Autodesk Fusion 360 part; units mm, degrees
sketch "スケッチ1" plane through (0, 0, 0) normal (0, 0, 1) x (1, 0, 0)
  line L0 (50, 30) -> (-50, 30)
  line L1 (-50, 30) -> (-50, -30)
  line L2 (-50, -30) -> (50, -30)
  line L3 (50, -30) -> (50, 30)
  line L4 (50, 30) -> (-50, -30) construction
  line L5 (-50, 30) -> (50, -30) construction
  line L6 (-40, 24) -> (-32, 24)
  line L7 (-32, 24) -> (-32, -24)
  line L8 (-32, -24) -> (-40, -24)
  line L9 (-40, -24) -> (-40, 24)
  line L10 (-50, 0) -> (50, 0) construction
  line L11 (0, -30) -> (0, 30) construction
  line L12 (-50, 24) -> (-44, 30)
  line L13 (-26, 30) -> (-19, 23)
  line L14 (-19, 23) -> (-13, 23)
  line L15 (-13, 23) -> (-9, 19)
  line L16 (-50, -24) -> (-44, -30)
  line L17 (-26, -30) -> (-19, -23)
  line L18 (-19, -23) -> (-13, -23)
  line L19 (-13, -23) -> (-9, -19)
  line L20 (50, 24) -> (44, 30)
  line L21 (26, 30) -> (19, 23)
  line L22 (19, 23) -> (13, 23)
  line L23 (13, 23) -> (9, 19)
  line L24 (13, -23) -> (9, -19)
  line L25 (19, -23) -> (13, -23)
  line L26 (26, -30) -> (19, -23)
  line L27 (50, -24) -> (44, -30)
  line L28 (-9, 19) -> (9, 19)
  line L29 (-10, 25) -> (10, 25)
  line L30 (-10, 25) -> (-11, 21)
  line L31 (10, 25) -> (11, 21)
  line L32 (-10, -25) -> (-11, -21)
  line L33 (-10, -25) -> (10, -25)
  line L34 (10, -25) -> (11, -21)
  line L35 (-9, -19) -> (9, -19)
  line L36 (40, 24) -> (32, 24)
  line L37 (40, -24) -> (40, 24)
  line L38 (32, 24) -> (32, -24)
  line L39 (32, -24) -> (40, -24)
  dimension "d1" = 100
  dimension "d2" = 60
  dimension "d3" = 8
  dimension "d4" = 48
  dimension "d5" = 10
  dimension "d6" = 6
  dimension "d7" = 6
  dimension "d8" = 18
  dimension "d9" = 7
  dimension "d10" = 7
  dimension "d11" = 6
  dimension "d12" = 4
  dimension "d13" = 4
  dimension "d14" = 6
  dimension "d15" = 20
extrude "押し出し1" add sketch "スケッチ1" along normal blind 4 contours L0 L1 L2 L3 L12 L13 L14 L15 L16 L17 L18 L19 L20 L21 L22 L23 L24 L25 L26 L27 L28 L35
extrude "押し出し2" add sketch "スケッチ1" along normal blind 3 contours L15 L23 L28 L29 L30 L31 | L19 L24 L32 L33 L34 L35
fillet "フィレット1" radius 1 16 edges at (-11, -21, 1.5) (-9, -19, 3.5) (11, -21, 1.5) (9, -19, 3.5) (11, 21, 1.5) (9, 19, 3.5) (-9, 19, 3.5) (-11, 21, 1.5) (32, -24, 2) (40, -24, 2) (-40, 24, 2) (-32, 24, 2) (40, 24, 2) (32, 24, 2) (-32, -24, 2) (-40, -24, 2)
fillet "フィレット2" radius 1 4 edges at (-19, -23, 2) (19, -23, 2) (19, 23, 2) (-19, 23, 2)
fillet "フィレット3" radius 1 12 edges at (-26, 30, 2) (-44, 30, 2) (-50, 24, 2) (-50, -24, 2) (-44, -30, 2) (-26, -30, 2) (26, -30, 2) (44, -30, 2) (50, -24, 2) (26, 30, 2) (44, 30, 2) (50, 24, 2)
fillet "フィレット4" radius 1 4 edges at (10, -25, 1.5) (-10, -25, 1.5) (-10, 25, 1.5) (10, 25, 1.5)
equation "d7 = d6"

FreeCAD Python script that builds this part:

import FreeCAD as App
import Part
import Sketcher
Q = App.Units.Quantity


def edges_at(feature, points):
    """Names of the edges that pass closest to the given points."""
    edges = feature.Shape.Edges
    near = lambda p: min(range(len(edges)), key=lambda i: edges[i].distToShape(Part.Vertex(*p))[0])
    return sorted({f"Edge{near(p) + 1}" for p in points})


def add_polygon(sketch, points):
    """Adds a closed chain of lines whose ends are joined by coincident constraints."""
    first, n = sketch.GeometryCount, len(points)
    for a, b in zip(points, points[1:] + points[:1]):
        sketch.addGeometry(Part.LineSegment(App.Vector(*a, 0), App.Vector(*b, 0)), False)
    for i in range(n):
        sketch.addConstraint(Sketcher.Constraint("Coincident", first + i, 2, first + (i + 1) % n, 1))

doc = App.newDocument("Part")
body = doc.addObject("PartDesign::Body", "Body")

# Sketch on XY plane
sketch1 = doc.addObject("Sketcher::SketchObject", "Sketch")
body.addObject(sketch1)
sketch1.AttachmentSupport = (doc.XY_Plane, [""])
sketch1.MapMode = "FlatFace"
add_polygon(sketch1, [(50, 24), (44, 30), (26, 30), (19, 23), (13, 23), (9, 19), (-9, 19), (-13, 23), (-19, 23), (-26, 30), (-44, 30), (-50, 24), (-50, -24), (-44, -30), (-26, -30), (-19, -23), (-13, -23), (-9, -19), (9, -19), (13, -23), (19, -23), (26, -30), (44, -30), (50, -24)])  # lines 0-23
add_polygon(sketch1, [(-40, -24), (-40, 24), (-32, 24), (-32, -24)])  # lines 24-27
add_polygon(sketch1, [(32, 24), (40, 24), (40, -24), (32, -24)])  # lines 28-31
sketch1.addConstraint([
    Sketcher.Constraint("Horizontal", 1),
    Sketcher.Constraint("Horizontal", 3),
    Sketcher.Constraint("Horizontal", 5),
    Sketcher.Constraint("Horizontal", 7),
    Sketcher.Constraint("Horizontal", 9),
    Sketcher.Constraint("Vertical", 11),
    Sketcher.Constraint("Horizontal", 13),
    Sketcher.Constraint("Horizontal", 15),
    Sketcher.Constraint("Horizontal", 17),
    Sketcher.Constraint("Horizontal", 19),
    Sketcher.Constraint("Horizontal", 21),
    Sketcher.Constraint("Vertical", 23),
    Sketcher.Constraint("Vertical", 24),
    Sketcher.Constraint("Horizontal", 25),
    Sketcher.Constraint("Vertical", 26),
    Sketcher.Constraint("Horizontal", 27),
    Sketcher.Constraint("Horizontal", 28),
    Sketcher.Constraint("Vertical", 29),
    Sketcher.Constraint("Horizontal", 30),
    Sketcher.Constraint("Vertical", 31),
    Sketcher.Constraint("Symmetric", 0, 2, 12, 2, -1, 1),
    Sketcher.Constraint("Symmetric", 2, 2, 14, 2, -1, 1),
    Sketcher.Constraint("Symmetric", 4, 2, 16, 2, -1, 1),
    Sketcher.Constraint("Symmetric", 6, 2, 18, 2, -1, 1),
    Sketcher.Constraint("Symmetric", 8, 2, 20, 2, -1, 1),
    Sketcher.Constraint("Symmetric", 10, 2, 22, 2, -1, 1),
    Sketcher.Constraint("Symmetric", 27, 2, 28, 2, -1, 1),
    Sketcher.Constraint("Symmetric", 25, 2, 30, 2, -1, 1),
    Sketcher.Constraint("Symmetric", 3, 2, 6, 2, -2),
    Sketcher.Constraint("Symmetric", 1, 2, 8, 2, -2),
    Sketcher.Constraint("Perpendicular", 0, 2),
    Sketcher.Constraint("Parallel", 2, 4),
    Sketcher.Constraint("Perpendicular", 4, 6),
    Sketcher.Constraint("Parallel", 6, 8),
    Sketcher.Constraint("Perpendicular", 8, 10),
    Sketcher.Constraint("Perpendicular", 10, 12),
    Sketcher.Constraint("Perpendicular", 12, 14),
    Sketcher.Constraint("Parallel", 14, 16),
    Sketcher.Constraint("Perpendicular", 16, 18),
    Sketcher.Constraint("Parallel", 18, 20),
    Sketcher.Constraint("Perpendicular", 20, 22),
    Sketcher.Constraint("Horizontal", 11, 2, 22, 2),
    Sketcher.Constraint("Horizontal", 23, 2, 24, 2),
    Sketcher.Constraint("Horizontal", 22, 2, 26, 2),
    Sketcher.Constraint("Vertical", 9, 2, 12, 2),
    Sketcher.Constraint("Equal", 1, 5),
    Sketcher.Constraint("DistanceX", 1, 2, 1, 1, Q("18 mm")),
    Sketcher.Constraint("DistanceX", 3, 2, 3, 1, Q("6 mm")),
    Sketcher.Constraint("DistanceX", 25, 1, 25, 2, Q("8 mm")),
    Sketcher.Constraint("DistanceY", 11, 2, 11, 1, Q("48 mm")),
    Sketcher.Constraint("DistanceX", 2, 2, 1, 2, Q("7 mm")),
    Sketcher.Constraint("DistanceX", 4, 2, 3, 2, Q("4 mm")),
    Sketcher.Constraint("DistanceX", 10, 2, 9, 2, Q("6 mm")),
    Sketcher.Constraint("DistanceX", 9, 2, 24, 2, Q("4 mm")),
])
pad1 = doc.addObject("PartDesign::Pad", "Pad")
body.addObject(pad1)
pad1.Profile = sketch1
pad1.Length = 4

# Sketch on XY plane
sketch2 = doc.addObject("Sketcher::SketchObject", "Sketch001")
body.addObject(sketch2)
sketch2.AttachmentSupport = (doc.XY_Plane, [""])
sketch2.MapMode = "FlatFace"
add_polygon(sketch2, [(9, 19), (11, 21), (10, 25), (-10, 25), (-11, 21), (-9, 19)])  # lines 0-5
add_polygon(sketch2, [(10, -25), (11, -21), (9, -19), (-9, -19), (-11, -21), (-10, -25)])  # lines 6-11
sketch2.addConstraint([
    Sketcher.Constraint("Horizontal", 2),
    Sketcher.Constraint("Horizontal", 5),
    Sketcher.Constraint("Horizontal", 8),
    Sketcher.Constraint("Horizontal", 11),
    Sketcher.Constraint("Symmetric", 3, 2, 6, 2, -1, 1),
    Sketcher.Constraint("Symmetric", 4, 2, 7, 2, -1, 1),
    Sketcher.Constraint("Symmetric", 0, 2, 9, 2, -1, 1),
    Sketcher.Constraint("Symmetric", 1, 2, 10, 2, -1, 1),
    Sketcher.Constraint("Symmetric", 0, 2, 3, 2, -2),
    Sketcher.Constraint("Perpendicular", 0, 4),
    Sketcher.Constraint("Parallel", 3, 6),
    Sketcher.Constraint("Perpendicular", 7, 9),
    Sketcher.Constraint("Vertical", 5, 2, 7, 2),
    Sketcher.Constraint("Vertical", 2, 2, 10, 2),
    Sketcher.Constraint("DistanceX", 2, 2, 2, 1, Q("20 mm")),
    Sketcher.Constraint("DistanceX", 5, 1, 5, 2, Q("18 mm")),
    Sketcher.Constraint("DistanceY", 0, 2, 1, 2, Q("4 mm")),
    Sketcher.Constraint("DistanceY", 4, 2, 2, 2, Q("6 mm")),
    Sketcher.Constraint("DistanceY", -1, 1, 0, 2, Q("21 mm")),
])
pad2 = doc.addObject("PartDesign::Pad", "Pad001")
body.addObject(pad2)
pad2.Profile = sketch2
pad2.Length = 3
doc.recompute()

fillet = doc.addObject("PartDesign::Fillet", "Fillet")
body.addObject(fillet)
fillet.Base = (pad2, edges_at(pad2, [
    (-11, -21, 1.5),
    (-9, -19, 3.5),
    (11, -21, 1.5),
    (9, -19, 3.5),
    (11, 21, 1.5),
    (9, 19, 3.5),
    (-9, 19, 3.5),
    (-11, 21, 1.5),
    (32, -24, 2),
    (40, -24, 2),
    (-40, 24, 2),
    (-32, 24, 2),
    (40, 24, 2),
    (32, 24, 2),
    (-32, -24, 2),
    (-40, -24, 2),
]))
fillet.Radius = 1
doc.recompute()

fillet2 = doc.addObject("PartDesign::Fillet", "Fillet001")
body.addObject(fillet2)
fillet2.Base = (fillet, edges_at(fillet, [
    (-19, -23, 2),
    (19, -23, 2),
    (19, 23, 2),
    (-19, 23, 2),
]))
fillet2.Radius = 1
doc.recompute()

fillet3 = doc.addObject("PartDesign::Fillet", "Fillet002")
body.addObject(fillet3)
fillet3.Base = (fillet2, edges_at(fillet2, [
    (-26, 30, 2),
    (-44, 30, 2),
    (-50, 24, 2),
    (-50, -24, 2),
    (-44, -30, 2),
    (-26, -30, 2),
    (26, -30, 2),
    (44, -30, 2),
    (50, -24, 2),
    (26, 30, 2),
    (44, 30, 2),
    (50, 24, 2),
]))
fillet3.Radius = 1
doc.recompute()

fillet4 = doc.addObject("PartDesign::Fillet", "Fillet003")
body.addObject(fillet4)
fillet4.Base = (fillet3, edges_at(fillet3, [
    (10, -25, 1.5),
    (-10, -25, 1.5),
    (-10, 25, 1.5),
    (10, 25, 1.5),
]))
fillet4.Radius = 1

doc.recompute()
